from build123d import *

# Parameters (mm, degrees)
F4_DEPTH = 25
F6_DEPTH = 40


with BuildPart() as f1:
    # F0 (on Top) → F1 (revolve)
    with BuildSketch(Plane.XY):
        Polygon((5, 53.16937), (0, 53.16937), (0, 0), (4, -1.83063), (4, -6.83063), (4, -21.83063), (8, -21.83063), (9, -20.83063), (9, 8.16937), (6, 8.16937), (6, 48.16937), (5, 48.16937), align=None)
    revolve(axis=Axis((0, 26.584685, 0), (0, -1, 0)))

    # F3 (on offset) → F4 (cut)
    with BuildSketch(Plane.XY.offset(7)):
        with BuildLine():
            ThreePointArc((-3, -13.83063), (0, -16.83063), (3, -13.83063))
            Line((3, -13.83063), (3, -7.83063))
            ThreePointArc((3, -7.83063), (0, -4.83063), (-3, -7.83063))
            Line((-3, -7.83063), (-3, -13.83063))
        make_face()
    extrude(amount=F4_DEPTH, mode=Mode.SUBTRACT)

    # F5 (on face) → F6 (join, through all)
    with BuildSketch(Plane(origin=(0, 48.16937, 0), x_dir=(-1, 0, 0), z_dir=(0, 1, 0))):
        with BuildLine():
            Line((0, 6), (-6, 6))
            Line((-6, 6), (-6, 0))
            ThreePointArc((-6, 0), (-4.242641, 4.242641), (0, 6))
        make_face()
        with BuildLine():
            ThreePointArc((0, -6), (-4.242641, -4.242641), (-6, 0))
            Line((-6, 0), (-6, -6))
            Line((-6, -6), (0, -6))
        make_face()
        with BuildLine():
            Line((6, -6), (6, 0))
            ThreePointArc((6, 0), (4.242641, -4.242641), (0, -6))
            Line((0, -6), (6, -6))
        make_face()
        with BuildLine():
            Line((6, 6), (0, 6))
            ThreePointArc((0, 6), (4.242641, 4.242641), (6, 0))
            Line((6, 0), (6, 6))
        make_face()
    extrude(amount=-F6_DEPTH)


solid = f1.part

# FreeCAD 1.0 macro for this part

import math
import FreeCAD as App
import Part
import Sketcher
Q = App.Units.Quantity

doc = App.newDocument("Part")
body = doc.addObject("PartDesign::Body", "Body")

sketch1 = body.newObject("Sketcher::SketchObject", "Sketch")
sketch1.AttachmentSupport = (doc.getObject("XY_Plane"), [""])
sketch1.MapMode = "FlatFace"
sketch1.addGeometry(Part.LineSegment(App.Vector(5, 53.2, 0), App.Vector(0, 53.2, 0)), False)
sketch1.addGeometry(Part.LineSegment(App.Vector(0, 53.2, 0), App.Vector(0, 0, 0)), False)
sketch1.addGeometry(Part.LineSegment(App.Vector(0, 0, 0), App.Vector(4, -1.8, 0)), False)
sketch1.addGeometry(Part.LineSegment(App.Vector(4, -1.8, 0), App.Vector(4, -21.8, 0)), False)
sketch1.addGeometry(Part.LineSegment(App.Vector(4, -21.8, 0), App.Vector(8, -21.8, 0)), False)
sketch1.addGeometry(Part.LineSegment(App.Vector(8, -21.8, 0), App.Vector(9, -20.8, 0)), False)
sketch1.addGeometry(Part.LineSegment(App.Vector(9, -20.8, 0), App.Vector(9, 8.2, 0)), False)
sketch1.addGeometry(Part.LineSegment(App.Vector(9, 8.2, 0), App.Vector(6, 8.2, 0)), False)
sketch1.addGeometry(Part.LineSegment(App.Vector(6, 8.2, 0), App.Vector(6, 48.2, 0)), False)
sketch1.addGeometry(Part.LineSegment(App.Vector(6, 48.2, 0), App.Vector(5, 48.2, 0)), False)
sketch1.addGeometry(Part.LineSegment(App.Vector(5, 48.2, 0), App.Vector(5, 53.2, 0)), False)
sketch1.addConstraint(Sketcher.Constraint("Coincident", 0, 2, 1, 1))
sketch1.addConstraint(Sketcher.Constraint("Coincident", 1, 2, 2, 1))
sketch1.addConstraint(Sketcher.Constraint("Coincident", 2, 2, 3, 1))
sketch1.addConstraint(Sketcher.Constraint("Coincident", 3, 2, 4, 1))
sketch1.addConstraint(Sketcher.Constraint("Coincident", 4, 2, 5, 1))
sketch1.addConstraint(Sketcher.Constraint("Coincident", 5, 2, 6, 1))
sketch1.addConstraint(Sketcher.Constraint("Coincident", 6, 2, 7, 1))
sketch1.addConstraint(Sketcher.Constraint("Coincident", 7, 2, 8, 1))
sketch1.addConstraint(Sketcher.Constraint("Coincident", 8, 2, 9, 1))
sketch1.addConstraint(Sketcher.Constraint("Coincident", 9, 2, 10, 1))
sketch1.addConstraint(Sketcher.Constraint("Coincident", 10, 2, 0, 1))
sketch1.addConstraint(Sketcher.Constraint("Horizontal", 0))
sketch1.addConstraint(Sketcher.Constraint("Vertical", 1))
sketch1.addConstraint(Sketcher.Constraint("Vertical", 3))
sketch1.addConstraint(Sketcher.Constraint("Horizontal", 4))
sketch1.addConstraint(Sketcher.Constraint("Vertical", 6))
sketch1.addConstraint(Sketcher.Constraint("Horizontal", 7))
sketch1.addConstraint(Sketcher.Constraint("Vertical", 8))
sketch1.addConstraint(Sketcher.Constraint("Horizontal", 9))
sketch1.addConstraint(Sketcher.Constraint("Vertical", 10))
sketch1.addConstraint(Sketcher.Constraint("Coincident", 1, 2, -1, 1))
sketch1.addConstraint(Sketcher.Constraint("Equal", 0, 10))
sketch1.addConstraint(Sketcher.Constraint("DistanceX", 0, 2, 0, 1, 5.0))
sketch1.addConstraint(Sketcher.Constraint("DistanceX", 4, 1, 4, 2, 4.0))
sketch1.addConstraint(Sketcher.Constraint("DistanceX", 7, 2, 7, 1, 3.0))
sketch1.addConstraint(Sketcher.Constraint("DistanceX", 9, 2, 9, 1, 1.0))
sketch1.addConstraint(Sketcher.Constraint("DistanceY", 3, 2, 3, 1, 20.0))
sketch1.addConstraint(Sketcher.Constraint("DistanceY", 6, 1, 6, 2, 29.0))
sketch1.addConstraint(Sketcher.Constraint("DistanceY", 8, 1, 8, 2, 40.0))
sketch1.addConstraint(Sketcher.Constraint("Angle", 5, Q("45 deg")))
sketch1.addConstraint(Sketcher.Constraint("DistanceX", -1, 1, 2, 2, 4.0))
sketch1.addConstraint(Sketcher.Constraint("Distance", 2, 4.399001))
revolution = body.newObject("PartDesign::Revolution", "Revolution")
revolution.Profile = sketch1
revolution.ReferenceAxis = (sketch1, ["V_Axis"])
revolution.Angle = 360

sketch2 = body.newObject("Sketcher::SketchObject", "Sketch001")
sketch2.AttachmentSupport = (doc.getObject("XY_Plane"), [""])
sketch2.MapMode = "FlatFace"
sketch2.AttachmentOffset = App.Placement(App.Vector(0, 0, 7), App.Rotation())
sketch2.addGeometry(Part.ArcOfCircle(Part.Circle(App.Vector(0, -13.8, 0), App.Vector(0, 0, 1), 3), math.radians(180), math.radians(360)), False)
sketch2.addGeometry(Part.LineSegment(App.Vector(3, -13.8, 0), App.Vector(3, -7.8, 0)), False)
sketch2.addGeometry(Part.ArcOfCircle(Part.Circle(App.Vector(0, -7.8, 0), App.Vector(0, 0, 1), 3), math.radians(0), math.radians(180)), False)
sketch2.addGeometry(Part.LineSegment(App.Vector(-3, -7.8, 0), App.Vector(-3, -13.8, 0)), False)
sketch2.addConstraint(Sketcher.Constraint("Tangent", 0, 2, 1, 1))
sketch2.addConstraint(Sketcher.Constraint("Tangent", 1, 2, 2, 1))
sketch2.addConstraint(Sketcher.Constraint("Tangent", 2, 2, 3, 1))
sketch2.addConstraint(Sketcher.Constraint("Tangent", 3, 2, 0, 1))
sketch2.addConstraint(Sketcher.Constraint("Vertical", 1))
sketch2.addConstraint(Sketcher.Constraint("Vertical", 3))
sketch2.addConstraint(Sketcher.Constraint("PointOnObject", 0, 3, -2))
sketch2.addConstraint(Sketcher.Constraint("Radius", 0, 3.0))
sketch2.addConstraint(Sketcher.Constraint("DistanceY", 1, 1, 1, 2, 6.0))
sketch2.addConstraint(Sketcher.Constraint("DistanceY", 0, 3, -1, 1, 13.83063))
pocket1 = body.newObject("PartDesign::Pocket", "Pocket")
pocket1.Profile = sketch2
pocket1.Length = 25
pocket1.Reversed = True

sketch3 = body.newObject("Sketcher::SketchObject", "Sketch002")
sketch3.AttachmentSupport = (doc.getObject("XZ_Plane"), [""])
sketch3.MapMode = "FlatFace"
sketch3.AttachmentOffset = App.Placement(App.Vector(0, 0, -48.16937), App.Rotation())
sketch3.addGeometry(Part.LineSegment(App.Vector(0, 6, 0), App.Vector(6, 6, 0)), False)
sketch3.addGeometry(Part.LineSegment(App.Vector(6, 6, 0), App.Vector(6, 0, 0)), False)
sketch3.addGeometry(Part.ArcOfCircle(Part.Circle(App.Vector(0, 0, 0), App.Vector(0, 0, 1), 6), math.radians(0), math.radians(90)), False)
sketch3.addGeometry(Part.ArcOfCircle(Part.Circle(App.Vector(0, 0, 0), App.Vector(0, 0, 1), 6), math.radians(-90), math.radians(0)), False)
sketch3.addGeometry(Part.LineSegment(App.Vector(6, 0, 0), App.Vector(6, -6, 0)), False)
sketch3.addGeometry(Part.LineSegment(App.Vector(6, -6, 0), App.Vector(0, -6, 0)), False)
sketch3.addGeometry(Part.LineSegment(App.Vector(-6, -6, 0), App.Vector(-6, 0, 0)), False)
sketch3.addGeometry(Part.ArcOfCircle(Part.Circle(App.Vector(0, 0, 0), App.Vector(0, 0, 1), 6), math.radians(180), math.radians(270)), False)
sketch3.addGeometry(Part.LineSegment(App.Vector(0, -6, 0), App.Vector(-6, -6, 0)), False)
sketch3.addGeometry(Part.LineSegment(App.Vector(-6, 6, 0), App.Vector(0, 6, 0)), False)
sketch3.addGeometry(Part.ArcOfCircle(Part.Circle(App.Vector(0, 0, 0), App.Vector(0, 0, 1), 6), math.radians(90), math.radians(180)), False)
sketch3.addGeometry(Part.LineSegment(App.Vector(-6, 0, 0), App.Vector(-6, 6, 0)), False)
sketch3.addConstraint(Sketcher.Constraint("Coincident", 0, 2, 1, 1))
sketch3.addConstraint(Sketcher.Constraint("Tangent", 1, 2, 2, 1))
sketch3.addConstraint(Sketcher.Constraint("Tangent", 2, 2, 0, 1))
sketch3.addConstraint(Sketcher.Constraint("Tangent", 3, 2, 4, 1))
sketch3.addConstraint(Sketcher.Constraint("Coincident", 4, 2, 5, 1))
sketch3.addConstraint(Sketcher.Constraint("Tangent", 5, 2, 3, 1))
sketch3.addConstraint(Sketcher.Constraint("Tangent", 6, 2, 7, 1))
sketch3.addConstraint(Sketcher.Constraint("Tangent", 7, 2, 8, 1))
sketch3.addConstraint(Sketcher.Constraint("Coincident", 8, 2, 6, 1))
sketch3.addConstraint(Sketcher.Constraint("Tangent", 9, 2, 10, 1))
sketch3.addConstraint(Sketcher.Constraint("Tangent", 10, 2, 11, 1))
sketch3.addConstraint(Sketcher.Constraint("Coincident", 11, 2, 9, 1))
sketch3.addConstraint(Sketcher.Constraint("Horizontal", 0))
sketch3.addConstraint(Sketcher.Constraint("Vertical", 1))
sketch3.addConstraint(Sketcher.Constraint("Vertical", 4))
sketch3.addConstraint(Sketcher.Constraint("Horizontal", 5))
sketch3.addConstraint(Sketcher.Constraint("Vertical", 6))
sketch3.addConstraint(Sketcher.Constraint("Horizontal", 8))
sketch3.addConstraint(Sketcher.Constraint("Horizontal", 9))
sketch3.addConstraint(Sketcher.Constraint("Vertical", 11))
sketch3.addConstraint(Sketcher.Constraint("Coincident", 2, 3, -1, 1))
sketch3.addConstraint(Sketcher.Constraint("Coincident", 3, 3, -1, 1))
sketch3.addConstraint(Sketcher.Constraint("Coincident", 7, 3, -1, 1))
sketch3.addConstraint(Sketcher.Constraint("Coincident", 10, 3, -1, 1))
sketch3.addConstraint(Sketcher.Constraint("Equal", 2, 3))
sketch3.addConstraint(Sketcher.Constraint("Equal", 3, 7))
sketch3.addConstraint(Sketcher.Constraint("Equal", 7, 10))
sketch3.addConstraint(Sketcher.Constraint("Radius", 2, 5.999999))
pad1 = body.newObject("PartDesign::Pad", "Pad")
pad1.Profile = sketch3
pad1.Length = 40

doc.recompute()
